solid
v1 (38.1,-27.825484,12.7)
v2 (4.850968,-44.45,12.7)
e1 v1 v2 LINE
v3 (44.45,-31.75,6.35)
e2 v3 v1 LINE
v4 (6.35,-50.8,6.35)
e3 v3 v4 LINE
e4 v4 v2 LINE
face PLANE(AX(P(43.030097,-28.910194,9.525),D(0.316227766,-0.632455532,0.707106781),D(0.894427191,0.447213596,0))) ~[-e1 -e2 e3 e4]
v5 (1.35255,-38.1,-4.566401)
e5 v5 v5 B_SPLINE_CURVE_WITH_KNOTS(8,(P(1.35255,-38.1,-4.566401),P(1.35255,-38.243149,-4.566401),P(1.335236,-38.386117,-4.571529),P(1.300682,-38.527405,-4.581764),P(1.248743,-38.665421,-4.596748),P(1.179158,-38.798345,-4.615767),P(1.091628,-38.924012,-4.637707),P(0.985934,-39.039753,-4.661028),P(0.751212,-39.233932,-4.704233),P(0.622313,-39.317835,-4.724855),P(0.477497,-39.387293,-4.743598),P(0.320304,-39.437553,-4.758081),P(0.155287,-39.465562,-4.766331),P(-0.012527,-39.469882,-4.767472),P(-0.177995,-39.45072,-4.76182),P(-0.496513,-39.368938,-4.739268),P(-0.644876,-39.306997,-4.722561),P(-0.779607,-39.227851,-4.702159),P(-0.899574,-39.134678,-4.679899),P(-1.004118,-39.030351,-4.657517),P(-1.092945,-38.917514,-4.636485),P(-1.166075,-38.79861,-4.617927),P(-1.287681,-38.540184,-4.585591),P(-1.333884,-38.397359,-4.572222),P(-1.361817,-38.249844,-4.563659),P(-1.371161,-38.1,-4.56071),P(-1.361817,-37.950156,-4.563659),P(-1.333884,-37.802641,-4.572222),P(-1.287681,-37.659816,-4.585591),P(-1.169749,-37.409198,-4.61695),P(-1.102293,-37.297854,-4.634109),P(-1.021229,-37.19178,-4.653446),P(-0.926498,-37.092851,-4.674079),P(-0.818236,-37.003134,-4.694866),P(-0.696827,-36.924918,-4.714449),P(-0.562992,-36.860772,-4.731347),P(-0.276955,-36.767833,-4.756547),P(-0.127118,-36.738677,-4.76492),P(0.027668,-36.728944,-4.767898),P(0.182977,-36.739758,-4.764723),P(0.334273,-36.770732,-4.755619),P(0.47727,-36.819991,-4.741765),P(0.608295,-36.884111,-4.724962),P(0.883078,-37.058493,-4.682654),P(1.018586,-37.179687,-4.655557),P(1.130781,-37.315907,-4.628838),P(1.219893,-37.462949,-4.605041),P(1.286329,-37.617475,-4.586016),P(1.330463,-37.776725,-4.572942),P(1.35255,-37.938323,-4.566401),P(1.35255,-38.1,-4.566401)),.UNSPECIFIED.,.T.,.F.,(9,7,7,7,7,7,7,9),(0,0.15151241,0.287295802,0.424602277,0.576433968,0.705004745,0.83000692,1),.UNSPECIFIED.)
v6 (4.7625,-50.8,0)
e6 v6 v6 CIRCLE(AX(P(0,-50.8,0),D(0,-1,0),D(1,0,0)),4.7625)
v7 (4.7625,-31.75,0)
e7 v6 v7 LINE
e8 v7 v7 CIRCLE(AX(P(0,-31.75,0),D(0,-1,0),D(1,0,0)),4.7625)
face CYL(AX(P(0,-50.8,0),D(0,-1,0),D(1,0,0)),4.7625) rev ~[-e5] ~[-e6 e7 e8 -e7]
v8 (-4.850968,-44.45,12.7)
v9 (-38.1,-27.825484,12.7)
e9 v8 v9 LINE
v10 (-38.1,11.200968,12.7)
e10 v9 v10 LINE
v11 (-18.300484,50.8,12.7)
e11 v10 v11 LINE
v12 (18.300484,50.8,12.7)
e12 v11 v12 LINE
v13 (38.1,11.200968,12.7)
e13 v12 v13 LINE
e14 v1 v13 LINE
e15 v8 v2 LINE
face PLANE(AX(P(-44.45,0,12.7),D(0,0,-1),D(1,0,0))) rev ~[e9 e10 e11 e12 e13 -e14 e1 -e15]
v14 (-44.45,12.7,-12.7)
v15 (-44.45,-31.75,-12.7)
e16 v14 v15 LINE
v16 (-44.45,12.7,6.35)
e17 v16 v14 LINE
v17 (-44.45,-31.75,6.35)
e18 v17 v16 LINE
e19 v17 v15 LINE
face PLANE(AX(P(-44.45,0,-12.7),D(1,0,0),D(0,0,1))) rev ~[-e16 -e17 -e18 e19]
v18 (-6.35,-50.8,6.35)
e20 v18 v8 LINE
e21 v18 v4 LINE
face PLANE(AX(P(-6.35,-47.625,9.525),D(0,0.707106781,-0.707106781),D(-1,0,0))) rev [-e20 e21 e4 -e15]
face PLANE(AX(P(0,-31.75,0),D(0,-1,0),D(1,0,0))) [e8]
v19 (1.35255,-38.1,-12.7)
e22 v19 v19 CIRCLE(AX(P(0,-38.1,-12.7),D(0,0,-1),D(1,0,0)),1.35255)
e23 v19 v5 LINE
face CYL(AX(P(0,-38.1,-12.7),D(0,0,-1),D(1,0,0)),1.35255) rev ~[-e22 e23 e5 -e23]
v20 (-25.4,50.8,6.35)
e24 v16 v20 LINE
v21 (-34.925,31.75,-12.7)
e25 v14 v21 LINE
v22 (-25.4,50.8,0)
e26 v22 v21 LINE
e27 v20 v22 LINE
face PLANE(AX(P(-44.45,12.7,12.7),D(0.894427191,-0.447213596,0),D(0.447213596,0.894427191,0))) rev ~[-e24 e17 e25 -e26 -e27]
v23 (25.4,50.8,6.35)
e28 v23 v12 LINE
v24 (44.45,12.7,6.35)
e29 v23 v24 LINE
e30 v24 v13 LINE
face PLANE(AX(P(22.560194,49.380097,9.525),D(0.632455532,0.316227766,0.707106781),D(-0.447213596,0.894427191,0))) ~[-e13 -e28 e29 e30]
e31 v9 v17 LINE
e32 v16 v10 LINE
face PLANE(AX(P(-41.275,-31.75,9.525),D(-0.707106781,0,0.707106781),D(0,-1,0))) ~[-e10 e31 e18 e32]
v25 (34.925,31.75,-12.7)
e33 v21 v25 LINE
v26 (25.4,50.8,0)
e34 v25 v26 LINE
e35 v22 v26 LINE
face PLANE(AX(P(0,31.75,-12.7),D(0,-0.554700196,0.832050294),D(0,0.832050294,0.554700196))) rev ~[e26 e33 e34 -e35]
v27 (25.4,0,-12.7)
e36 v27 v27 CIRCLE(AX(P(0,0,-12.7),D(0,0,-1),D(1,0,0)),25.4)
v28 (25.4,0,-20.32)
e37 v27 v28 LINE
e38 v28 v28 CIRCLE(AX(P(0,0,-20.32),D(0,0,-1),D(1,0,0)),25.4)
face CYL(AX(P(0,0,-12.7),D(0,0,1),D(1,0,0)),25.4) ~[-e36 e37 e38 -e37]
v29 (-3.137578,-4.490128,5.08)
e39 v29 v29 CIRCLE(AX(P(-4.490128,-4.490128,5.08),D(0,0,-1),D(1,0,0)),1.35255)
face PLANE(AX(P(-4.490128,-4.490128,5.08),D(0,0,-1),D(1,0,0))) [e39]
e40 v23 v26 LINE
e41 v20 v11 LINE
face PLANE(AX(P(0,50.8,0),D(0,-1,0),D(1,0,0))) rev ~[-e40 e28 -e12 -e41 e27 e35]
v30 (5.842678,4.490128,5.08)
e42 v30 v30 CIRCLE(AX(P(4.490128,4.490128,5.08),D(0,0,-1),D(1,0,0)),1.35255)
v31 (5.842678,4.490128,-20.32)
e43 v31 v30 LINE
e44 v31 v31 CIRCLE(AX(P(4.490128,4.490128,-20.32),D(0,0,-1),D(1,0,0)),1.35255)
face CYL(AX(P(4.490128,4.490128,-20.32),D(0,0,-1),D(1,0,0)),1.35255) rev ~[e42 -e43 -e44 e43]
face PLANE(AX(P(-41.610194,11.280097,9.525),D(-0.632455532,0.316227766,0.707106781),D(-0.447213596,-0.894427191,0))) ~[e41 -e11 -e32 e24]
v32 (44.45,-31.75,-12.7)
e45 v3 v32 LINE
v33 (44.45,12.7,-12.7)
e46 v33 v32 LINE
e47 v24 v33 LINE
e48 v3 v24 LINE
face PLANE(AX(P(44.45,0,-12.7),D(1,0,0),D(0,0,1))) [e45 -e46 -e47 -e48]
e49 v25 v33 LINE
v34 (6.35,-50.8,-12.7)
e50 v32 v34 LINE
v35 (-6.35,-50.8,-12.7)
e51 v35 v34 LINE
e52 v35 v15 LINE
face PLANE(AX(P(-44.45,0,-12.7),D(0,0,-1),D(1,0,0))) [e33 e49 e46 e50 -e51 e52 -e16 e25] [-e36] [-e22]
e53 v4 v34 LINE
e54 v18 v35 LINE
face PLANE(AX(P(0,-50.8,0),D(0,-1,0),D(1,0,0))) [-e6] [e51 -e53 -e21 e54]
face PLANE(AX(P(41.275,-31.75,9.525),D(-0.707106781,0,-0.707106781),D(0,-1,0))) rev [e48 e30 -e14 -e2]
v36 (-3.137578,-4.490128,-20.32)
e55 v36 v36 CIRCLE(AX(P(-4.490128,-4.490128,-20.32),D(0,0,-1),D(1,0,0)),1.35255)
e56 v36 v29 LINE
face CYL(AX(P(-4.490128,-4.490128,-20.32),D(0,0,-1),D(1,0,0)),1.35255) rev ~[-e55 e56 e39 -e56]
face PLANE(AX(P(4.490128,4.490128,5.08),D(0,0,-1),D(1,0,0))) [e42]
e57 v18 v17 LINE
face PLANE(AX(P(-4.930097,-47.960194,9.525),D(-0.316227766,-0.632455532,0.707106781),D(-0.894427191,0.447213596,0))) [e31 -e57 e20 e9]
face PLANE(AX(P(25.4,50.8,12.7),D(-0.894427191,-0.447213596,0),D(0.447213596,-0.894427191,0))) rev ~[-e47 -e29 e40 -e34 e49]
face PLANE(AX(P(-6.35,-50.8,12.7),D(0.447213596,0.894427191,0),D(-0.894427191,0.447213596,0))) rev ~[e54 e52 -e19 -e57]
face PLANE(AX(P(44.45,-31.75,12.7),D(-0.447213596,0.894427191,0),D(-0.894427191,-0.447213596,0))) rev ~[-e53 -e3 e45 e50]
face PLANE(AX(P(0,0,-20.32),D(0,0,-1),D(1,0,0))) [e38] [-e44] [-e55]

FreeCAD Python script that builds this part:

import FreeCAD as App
import Part
import Sketcher
Q = App.Units.Quantity


def edges_at(feature, points):
    """Names of the edges that pass closest to the given points."""
    edges = feature.Shape.Edges
    near = lambda p: min(range(len(edges)), key=lambda i: edges[i].distToShape(Part.Vertex(*p))[0])
    return sorted({f"Edge{near(p) + 1}" for p in points})

doc = App.newDocument("Part")
params = doc.addObject("Spreadsheet::Sheet", "Params")
for row, (alias, value) in enumerate([
    ("sketch1_height", "1 in"),
    ("sketch1_width", "3.5 in"),
    ("pad1_length", "4 in"),
    ("sketch2_width", "1.5 in"),
    ("pocket1_length", "1 in"),
    ("sketch3_height", "0.5 in"),
    ("sketch3_width", "0.75 in"),
    ("sketch4_height", "0.5 in"),
    ("sketch4_width", "0.75 in"),
    ("chamfer_size", "0.25 in"),
    ("sketch5_diameter", "2 in"),
    ("pad2_length", "0.3 in"),
    ("pocket4_length", "1 in"),
    ("sketch7_diameter", "0.375 in"),
    ("pocket5_length", "0.75 in"),
    ("pocket6_length", "0.5 in"),
], start=1):
    params.set(f"A{row}", alias)
    params.set(f"B{row}", "=" + value)
    params.setAlias(f"B{row}", alias)

body = doc.addObject("PartDesign::Body", "Body")

# Sketch on XZ plane
sketch1 = body.newObject("Sketcher::SketchObject", "Sketch")
sketch1.AttachmentSupport = (doc.getObject("XZ_Plane"), [""])
sketch1.MapMode = "FlatFace"
sketch1.addGeometry(Part.LineSegment(App.Vector(-44, 13, 0), App.Vector(-44, -13, 0)), False)
sketch1.addGeometry(Part.LineSegment(App.Vector(-44, -13, 0), App.Vector(44, -13, 0)), False)
sketch1.addGeometry(Part.LineSegment(App.Vector(44, -13, 0), App.Vector(44, 13, 0)), False)
sketch1.addGeometry(Part.LineSegment(App.Vector(44, 13, 0), App.Vector(-44, 13, 0)), False)
sketch1.addConstraint(Sketcher.Constraint("Coincident", 0, 2, 1, 1))
sketch1.addConstraint(Sketcher.Constraint("Coincident", 1, 2, 2, 1))
sketch1.addConstraint(Sketcher.Constraint("Coincident", 2, 2, 3, 1))
sketch1.addConstraint(Sketcher.Constraint("Coincident", 3, 2, 0, 1))
sketch1.addConstraint(Sketcher.Constraint("Vertical", 0))
sketch1.addConstraint(Sketcher.Constraint("Horizontal", 1))
sketch1.addConstraint(Sketcher.Constraint("Vertical", 2))
sketch1.addConstraint(Sketcher.Constraint("Horizontal", 3))
sketch1.addConstraint(Sketcher.Constraint("Symmetric", 0, 2, 2, 2, -1, 1))
sketch1.addConstraint(Sketcher.Constraint("DistanceY", 0, 2, 0, 1, Q("1 in")))
sketch1.addConstraint(Sketcher.Constraint("DistanceX", 1, 1, 1, 2, Q("3.5 in")))
sketch1.setExpression("Constraints[9]", "Params.sketch1_height")
sketch1.setExpression("Constraints[10]", "Params.sketch1_width")
pad1 = body.newObject("PartDesign::Pad", "Pad")
pad1.Profile = sketch1
pad1.setExpression("Length", "Params.pad1_length")
pad1.Midplane = True

# Sketch on XY plane
sketch2 = body.newObject("Sketcher::SketchObject", "Sketch001")
sketch2.AttachmentSupport = (doc.getObject("XY_Plane"), [""])
sketch2.MapMode = "FlatFace"
sketch2.AttachmentOffset = App.Placement(App.Vector(0, 0, 0.5 * 25.4), App.Rotation())
sketch2.addGeometry(Part.LineSegment(App.Vector(44, -32, 0), App.Vector(6, -51, 0)), False)
sketch2.addGeometry(Part.LineSegment(App.Vector(6, -51, 0), App.Vector(44, -51, 0)), False)
sketch2.addGeometry(Part.LineSegment(App.Vector(44, -51, 0), App.Vector(44, -32, 0)), False)
sketch2.addGeometry(Part.LineSegment(App.Vector(-6, -51, 0), App.Vector(-44, -32, 0)), False)
sketch2.addGeometry(Part.LineSegment(App.Vector(-44, -32, 0), App.Vector(-44, -51, 0)), False)
sketch2.addGeometry(Part.LineSegment(App.Vector(-44, -51, 0), App.Vector(-6, -51, 0)), False)
sketch2.addGeometry(Part.LineSegment(App.Vector(-25, 51, 0), App.Vector(-44, 51, 0)), False)
sketch2.addGeometry(Part.LineSegment(App.Vector(-44, 51, 0), App.Vector(-44, 13, 0)), False)
sketch2.addGeometry(Part.LineSegment(App.Vector(-44, 13, 0), App.Vector(-25, 51, 0)), False)
sketch2.addGeometry(Part.LineSegment(App.Vector(44, 13, 0), App.Vector(44, 51, 0)), False)
sketch2.addGeometry(Part.LineSegment(App.Vector(44, 51, 0), App.Vector(25, 51, 0)), False)
sketch2.addGeometry(Part.LineSegment(App.Vector(25, 51, 0), App.Vector(44, 13, 0)), False)
sketch2.addConstraint(Sketcher.Constraint("Coincident", 0, 2, 1, 1))
sketch2.addConstraint(Sketcher.Constraint("Coincident", 1, 2, 2, 1))
sketch2.addConstraint(Sketcher.Constraint("Coincident", 2, 2, 0, 1))
sketch2.addConstraint(Sketcher.Constraint("Coincident", 3, 2, 4, 1))
sketch2.addConstraint(Sketcher.Constraint("Coincident", 4, 2, 5, 1))
sketch2.addConstraint(Sketcher.Constraint("Coincident", 5, 2, 3, 1))
sketch2.addConstraint(Sketcher.Constraint("Coincident", 6, 2, 7, 1))
sketch2.addConstraint(Sketcher.Constraint("Coincident", 7, 2, 8, 1))
sketch2.addConstraint(Sketcher.Constraint("Coincident", 8, 2, 6, 1))
sketch2.addConstraint(Sketcher.Constraint("Coincident", 9, 2, 10, 1))
sketch2.addConstraint(Sketcher.Constraint("Coincident", 10, 2, 11, 1))
sketch2.addConstraint(Sketcher.Constraint("Coincident", 11, 2, 9, 1))
sketch2.addConstraint(Sketcher.Constraint("Horizontal", 1))
sketch2.addConstraint(Sketcher.Constraint("Vertical", 2))
sketch2.addConstraint(Sketcher.Constraint("Vertical", 4))
sketch2.addConstraint(Sketcher.Constraint("Horizontal", 5))
sketch2.addConstraint(Sketcher.Constraint("Horizontal", 6))
sketch2.addConstraint(Sketcher.Constraint("Vertical", 7))
sketch2.addConstraint(Sketcher.Constraint("Vertical", 9))
sketch2.addConstraint(Sketcher.Constraint("Horizontal", 10))
sketch2.addConstraint(Sketcher.Constraint("Symmetric", 1, 2, 6, 2, -1, 1))
sketch2.addConstraint(Sketcher.Constraint("Symmetric", 4, 2, 9, 2, -1, 1))
sketch2.addConstraint(Sketcher.Constraint("Symmetric", 2, 2, 3, 2, -2))
sketch2.addConstraint(Sketcher.Constraint("Symmetric", 0, 2, 5, 2, -2))
sketch2.addConstraint(Sketcher.Constraint("Perpendicular", 3, 8))
sketch2.addConstraint(Sketcher.Constraint("Perpendicular", 0, 11))
sketch2.addConstraint(Sketcher.Constraint("Horizontal", 7, 2, 11, 2))
sketch2.addConstraint(Sketcher.Constraint("Equal", 10, 2))
sketch2.addConstraint(Sketcher.Constraint("DistanceX", 1, 1, 1, 2, Q("1.5 in")))
sketch2.addConstraint(Sketcher.Constraint("DistanceY", 0, 2, -1, 1, Q("2 in")))
sketch2.addConstraint(Sketcher.Constraint("DistanceX", 8, 2, -1, 1, Q("1 in")))
sketch2.addConstraint(Sketcher.Constraint("DistanceX", 3, 2, 0, 2, Q("2 in")))
sketch2.setExpression("Constraints[28]", "Params.sketch2_width")
pocket1 = body.newObject("PartDesign::Pocket", "Pocket")
pocket1.Profile = sketch2
pocket1.setExpression("Length", "Params.pocket1_length")

# Sketch on YZ plane
sketch3 = body.newObject("Sketcher::SketchObject", "Sketch002")
sketch3.AttachmentSupport = (doc.getObject("YZ_Plane"), [""])
sketch3.MapMode = "FlatFace"
sketch3.addGeometry(Part.LineSegment(App.Vector(51, 0, 0), App.Vector(32, -13, 0)), False)
sketch3.addGeometry(Part.LineSegment(App.Vector(32, -13, 0), App.Vector(51, -13, 0)), False)
sketch3.addGeometry(Part.LineSegment(App.Vector(51, -13, 0), App.Vector(51, 0, 0)), False)
sketch3.addConstraint(Sketcher.Constraint("Coincident", 0, 2, 1, 1))
sketch3.addConstraint(Sketcher.Constraint("Coincident", 1, 2, 2, 1))
sketch3.addConstraint(Sketcher.Constraint("Coincident", 2, 2, 0, 1))
sketch3.addConstraint(Sketcher.Constraint("Horizontal", 1))
sketch3.addConstraint(Sketcher.Constraint("Vertical", 2))
sketch3.addConstraint(Sketcher.Constraint("PointOnObject", 2, 2, -1))
sketch3.addConstraint(Sketcher.Constraint("DistanceY", 2, 1, 2, 2, Q("0.5 in")))
sketch3.addConstraint(Sketcher.Constraint("DistanceX", -1, 1, 1, 2, Q("2 in")))
sketch3.addConstraint(Sketcher.Constraint("DistanceX", 1, 1, 1, 2, Q("0.75 in")))
sketch3.setExpression("Constraints[6]", "Params.sketch3_height")
sketch3.setExpression("Constraints[8]", "Params.sketch3_width")
pocket2 = body.newObject("PartDesign::Pocket", "Pocket001")
pocket2.Profile = sketch3
pocket2.Type = "ThroughAll"

# Sketch on YZ plane
sketch4 = body.newObject("Sketcher::SketchObject", "Sketch003")
sketch4.AttachmentSupport = (doc.getObject("YZ_Plane"), [""])
sketch4.MapMode = "FlatFace"
sketch4.addGeometry(Part.LineSegment(App.Vector(32, -13, 0), App.Vector(51, 0, 0)), False)
sketch4.addGeometry(Part.LineSegment(App.Vector(51, 0, 0), App.Vector(51, -13, 0)), False)
sketch4.addGeometry(Part.LineSegment(App.Vector(51, -13, 0), App.Vector(32, -13, 0)), False)
sketch4.addConstraint(Sketcher.Constraint("Coincident", 0, 2, 1, 1))
sketch4.addConstraint(Sketcher.Constraint("Coincident", 1, 2, 2, 1))
sketch4.addConstraint(Sketcher.Constraint("Coincident", 2, 2, 0, 1))
sketch4.addConstraint(Sketcher.Constraint("Vertical", 1))
sketch4.addConstraint(Sketcher.Constraint("Horizontal", 2))
sketch4.addConstraint(Sketcher.Constraint("PointOnObject", 0, 2, -1))
sketch4.addConstraint(Sketcher.Constraint("DistanceY", 1, 2, 1, 1, Q("0.5 in")))
sketch4.addConstraint(Sketcher.Constraint("DistanceX", -1, 1, 0, 2, Q("2 in")))
sketch4.addConstraint(Sketcher.Constraint("DistanceX", 2, 2, 2, 1, Q("0.75 in")))
sketch4.setExpression("Constraints[6]", "Params.sketch4_height")
sketch4.setExpression("Constraints[8]", "Params.sketch4_width")
pocket3 = body.newObject("PartDesign::Pocket", "Pocket002")
pocket3.Profile = sketch4
pocket3.Type = "ThroughAll"
pocket3.Reversed = True
doc.recompute()

chamfer = body.newObject("PartDesign::Chamfer", "Chamfer")
chamfer.Base = (pocket3, edges_at(pocket3, [
    (25.4, -41.275, 12.7),
    (0, -50.8, 12.7),
    (-25.4, -41.275, 12.7),
    (-44.45, -9.525, 12.7),
    (-34.925, 31.75, 12.7),
    (44.45, -9.525, 12.7),
    (34.925, 31.75, 12.7),
]))
chamfer.setExpression("Size", "Params.chamfer_size")

# Sketch on XY plane
sketch5 = body.newObject("Sketcher::SketchObject", "Sketch004")
sketch5.AttachmentSupport = (doc.getObject("XY_Plane"), [""])
sketch5.MapMode = "FlatFace"
sketch5.AttachmentOffset = App.Placement(App.Vector(0, 0, -0.5 * 25.4), App.Rotation())
sketch5.addGeometry(Part.Circle(App.Vector(0, 0, 0), App.Vector(0, 0, 1), 25), False)
sketch5.addConstraint(Sketcher.Constraint("Coincident", 0, 3, -1, 1))
sketch5.addConstraint(Sketcher.Constraint("Diameter", 0, Q("2 in")))
sketch5.setExpression("Constraints[1]", "Params.sketch5_diameter")
pad2 = body.newObject("PartDesign::Pad", "Pad001")
pad2.Profile = sketch5
pad2.setExpression("Length", "Params.pad2_length")
pad2.Reversed = True

# Sketch on XY plane
sketch6 = body.newObject("Sketcher::SketchObject", "Sketch005")
sketch6.AttachmentSupport = (doc.getObject("XY_Plane"), [""])
sketch6.MapMode = "FlatFace"
sketch6.AttachmentOffset = App.Placement(App.Vector(0, 0, -0.8 * 25.4), App.Rotation())
sketch6.addGeometry(Part.Circle(App.Vector(4.5, 4.5, 0), App.Vector(0, 0, 1), 1.4), False)
sketch6.addGeometry(Part.Circle(App.Vector(-4.5, -4.5, 0), App.Vector(0, 0, 1), 1.4), False)
sketch6.addConstraint(Sketcher.Constraint("Equal", 0, 1))
sketch6.addConstraint(Sketcher.Constraint("Symmetric", 0, 3, 1, 3, -1, 1))
sketch6.addConstraint(Sketcher.Constraint("Diameter", 0, Q("0.1065 in")))
sketch6.addConstraint(Sketcher.Constraint("DistanceX", -1, 1, 0, 3, 4.490128))
sketch6.addConstraint(Sketcher.Constraint("DistanceY", -1, 1, 0, 3, 4.490128))
pocket4 = body.newObject("PartDesign::Pocket", "Pocket003")
pocket4.Profile = sketch6
pocket4.setExpression("Length", "Params.pocket4_length")
pocket4.Reversed = True

# Sketch on XZ plane
sketch7 = body.newObject("Sketcher::SketchObject", "Sketch006")
sketch7.AttachmentSupport = (doc.getObject("XZ_Plane"), [""])
sketch7.MapMode = "FlatFace"
sketch7.AttachmentOffset = App.Placement(App.Vector(0, 0, 2 * 25.4), App.Rotation())
sketch7.addGeometry(Part.Circle(App.Vector(0, 0, 0), App.Vector(0, 0, 1), 4.8), False)
sketch7.addConstraint(Sketcher.Constraint("Coincident", 0, 3, -1, 1))
sketch7.addConstraint(Sketcher.Constraint("Diameter", 0, Q("0.375 in")))
sketch7.setExpression("Constraints[1]", "Params.sketch7_diameter")
pocket5 = body.newObject("PartDesign::Pocket", "Pocket004")
pocket5.Profile = sketch7
pocket5.setExpression("Length", "Params.pocket5_length")

# Sketch on XY plane
sketch8 = body.newObject("Sketcher::SketchObject", "Sketch007")
sketch8.AttachmentSupport = (doc.getObject("XY_Plane"), [""])
sketch8.MapMode = "FlatFace"
sketch8.AttachmentOffset = App.Placement(App.Vector(0, 0, -0.5 * 25.4), App.Rotation())
sketch8.addGeometry(Part.Circle(App.Vector(0, -38.1, 0), App.Vector(0, 0, 1), 1.4), False)
sketch8.addConstraint(Sketcher.Constraint("PointOnObject", 0, 3, -2))
sketch8.addConstraint(Sketcher.Constraint("Diameter", 0, Q("0.1065 in")))
sketch8.addConstraint(Sketcher.Constraint("DistanceY", 0, 3, -1, 1, Q("1.5 in")))
pocket6 = body.newObject("PartDesign::Pocket", "Pocket005")
pocket6.Profile = sketch8
pocket6.setExpression("Length", "Params.pocket6_length")
pocket6.Reversed = True

doc.recompute()
